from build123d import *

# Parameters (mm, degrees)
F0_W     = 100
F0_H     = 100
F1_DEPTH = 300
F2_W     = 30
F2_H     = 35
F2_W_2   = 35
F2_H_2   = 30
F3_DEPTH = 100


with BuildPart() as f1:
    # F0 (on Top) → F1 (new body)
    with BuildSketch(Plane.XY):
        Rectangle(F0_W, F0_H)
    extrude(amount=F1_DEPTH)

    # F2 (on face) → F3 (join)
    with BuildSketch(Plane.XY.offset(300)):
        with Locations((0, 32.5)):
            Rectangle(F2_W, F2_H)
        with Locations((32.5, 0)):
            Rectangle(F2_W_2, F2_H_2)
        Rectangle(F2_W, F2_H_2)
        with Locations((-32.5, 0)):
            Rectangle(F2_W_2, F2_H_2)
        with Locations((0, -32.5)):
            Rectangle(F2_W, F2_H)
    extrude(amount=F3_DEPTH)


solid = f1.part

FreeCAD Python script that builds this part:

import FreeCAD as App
import Part
import Sketcher
from FreeCAD import Vector

doc = App.newDocument("Part")
body = doc.addObject("PartDesign::Body", "Body")

# Sketch on XY plane
sketch1 = body.newObject("Sketcher::SketchObject", "Sketch")
sketch1.AttachmentSupport = (doc.getObject("XY_Plane"), [""])
sketch1.MapMode = "FlatFace"
sketch1.addGeometry([
    Part.LineSegment(Vector(-50, 50, 0), Vector(-50, -50, 0)),
    Part.LineSegment(Vector(-50, -50, 0), Vector(50, -50, 0)),
    Part.LineSegment(Vector(50, -50, 0), Vector(50, 50, 0)),
    Part.LineSegment(Vector(50, 50, 0), Vector(-50, 50, 0)),
], False)
sketch1.addConstraint([
    Sketcher.Constraint("Coincident", 0, 2, 1, 1),
    Sketcher.Constraint("Coincident", 1, 2, 2, 1),
    Sketcher.Constraint("Coincident", 2, 2, 3, 1),
    Sketcher.Constraint("Coincident", 3, 2, 0, 1),
    Sketcher.Constraint("Vertical", 0),
    Sketcher.Constraint("Horizontal", 1),
    Sketcher.Constraint("Vertical", 2),
    Sketcher.Constraint("Horizontal", 3),
    Sketcher.Constraint("Symmetric", 0, 2, 2, 2, -1, 1),
    Sketcher.Constraint("Equal", 3, 0),
    Sketcher.Constraint("DistanceX", 1, 1, 1, 2, 100.0),
])
pad1 = body.newObject("PartDesign::Pad", "Pad")
pad1.Profile = sketch1
pad1.Length = 300

# Sketch on XY plane
sketch2 = body.newObject("Sketcher::SketchObject", "Sketch001")
sketch2.AttachmentSupport = (doc.getObject("XY_Plane"), [""])
sketch2.MapMode = "FlatFace"
sketch2.AttachmentOffset = App.Placement(Vector(0, 0, 300), App.Rotation())
sketch2.addGeometry([
    Part.LineSegment(Vector(-15, 50, 0), Vector(-15, 15, 0)),  # 0
    Part.LineSegment(Vector(-15, 15, 0), Vector(-50, 15, 0)),  # 1
    Part.LineSegment(Vector(-50, 15, 0), Vector(-50, -15, 0)),  # 2
    Part.LineSegment(Vector(-50, -15, 0), Vector(-15, -15, 0)),  # 3
    Part.LineSegment(Vector(-15, -15, 0), Vector(-15, -50, 0)),  # 4
    Part.LineSegment(Vector(-15, -50, 0), Vector(15, -50, 0)),  # 5
    Part.LineSegment(Vector(15, -50, 0), Vector(15, -15, 0)),  # 6
    Part.LineSegment(Vector(15, -15, 0), Vector(50, -15, 0)),  # 7
    Part.LineSegment(Vector(50, -15, 0), Vector(50, 15, 0)),  # 8
    Part.LineSegment(Vector(50, 15, 0), Vector(15, 15, 0)),  # 9
    Part.LineSegment(Vector(15, 15, 0), Vector(15, 50, 0)),  # 10
    Part.LineSegment(Vector(15, 50, 0), Vector(-15, 50, 0)),  # 11
], False)
sketch2.addConstraint([
    Sketcher.Constraint("Coincident", 0, 2, 1, 1),
    Sketcher.Constraint("Coincident", 1, 2, 2, 1),
    Sketcher.Constraint("Coincident", 2, 2, 3, 1),
    Sketcher.Constraint("Coincident", 3, 2, 4, 1),
    Sketcher.Constraint("Coincident", 4, 2, 5, 1),
    Sketcher.Constraint("Coincident", 5, 2, 6, 1),
    Sketcher.Constraint("Coincident", 6, 2, 7, 1),
    Sketcher.Constraint("Coincident", 7, 2, 8, 1),
    Sketcher.Constraint("Coincident", 8, 2, 9, 1),
    Sketcher.Constraint("Coincident", 9, 2, 10, 1),
    Sketcher.Constraint("Coincident", 10, 2, 11, 1),
    Sketcher.Constraint("Coincident", 11, 2, 0, 1),
    Sketcher.Constraint("Vertical", 0),
    Sketcher.Constraint("Horizontal", 1),
    Sketcher.Constraint("Vertical", 2),
    Sketcher.Constraint("Horizontal", 3),
    Sketcher.Constraint("Vertical", 4),
    Sketcher.Constraint("Horizontal", 5),
    Sketcher.Constraint("Vertical", 6),
    Sketcher.Constraint("Horizontal", 7),
    Sketcher.Constraint("Vertical", 8),
    Sketcher.Constraint("Horizontal", 9),
    Sketcher.Constraint("Vertical", 10),
    Sketcher.Constraint("Horizontal", 11),
    Sketcher.Constraint("Symmetric", 0, 2, 6, 2, -1, 1),
    Sketcher.Constraint("Symmetric", 2, 2, 8, 2, -1, 1),
    Sketcher.Constraint("Symmetric", 4, 2, 10, 2, -1, 1),
    Sketcher.Constraint("Symmetric", 3, 2, 6, 2, -2),
    Sketcher.Constraint("Equal", 9, 0),
    Sketcher.Constraint("Equal", 11, 2),
    Sketcher.Constraint("DistanceX", 1, 2, 1, 1, 35.0),
    Sketcher.Constraint("DistanceX", 5, 1, 5, 2, 30.0),
])
pad2 = body.newObject("PartDesign::Pad", "Pad001")
pad2.Profile = sketch2
pad2.Length = 100

doc.recompute()
